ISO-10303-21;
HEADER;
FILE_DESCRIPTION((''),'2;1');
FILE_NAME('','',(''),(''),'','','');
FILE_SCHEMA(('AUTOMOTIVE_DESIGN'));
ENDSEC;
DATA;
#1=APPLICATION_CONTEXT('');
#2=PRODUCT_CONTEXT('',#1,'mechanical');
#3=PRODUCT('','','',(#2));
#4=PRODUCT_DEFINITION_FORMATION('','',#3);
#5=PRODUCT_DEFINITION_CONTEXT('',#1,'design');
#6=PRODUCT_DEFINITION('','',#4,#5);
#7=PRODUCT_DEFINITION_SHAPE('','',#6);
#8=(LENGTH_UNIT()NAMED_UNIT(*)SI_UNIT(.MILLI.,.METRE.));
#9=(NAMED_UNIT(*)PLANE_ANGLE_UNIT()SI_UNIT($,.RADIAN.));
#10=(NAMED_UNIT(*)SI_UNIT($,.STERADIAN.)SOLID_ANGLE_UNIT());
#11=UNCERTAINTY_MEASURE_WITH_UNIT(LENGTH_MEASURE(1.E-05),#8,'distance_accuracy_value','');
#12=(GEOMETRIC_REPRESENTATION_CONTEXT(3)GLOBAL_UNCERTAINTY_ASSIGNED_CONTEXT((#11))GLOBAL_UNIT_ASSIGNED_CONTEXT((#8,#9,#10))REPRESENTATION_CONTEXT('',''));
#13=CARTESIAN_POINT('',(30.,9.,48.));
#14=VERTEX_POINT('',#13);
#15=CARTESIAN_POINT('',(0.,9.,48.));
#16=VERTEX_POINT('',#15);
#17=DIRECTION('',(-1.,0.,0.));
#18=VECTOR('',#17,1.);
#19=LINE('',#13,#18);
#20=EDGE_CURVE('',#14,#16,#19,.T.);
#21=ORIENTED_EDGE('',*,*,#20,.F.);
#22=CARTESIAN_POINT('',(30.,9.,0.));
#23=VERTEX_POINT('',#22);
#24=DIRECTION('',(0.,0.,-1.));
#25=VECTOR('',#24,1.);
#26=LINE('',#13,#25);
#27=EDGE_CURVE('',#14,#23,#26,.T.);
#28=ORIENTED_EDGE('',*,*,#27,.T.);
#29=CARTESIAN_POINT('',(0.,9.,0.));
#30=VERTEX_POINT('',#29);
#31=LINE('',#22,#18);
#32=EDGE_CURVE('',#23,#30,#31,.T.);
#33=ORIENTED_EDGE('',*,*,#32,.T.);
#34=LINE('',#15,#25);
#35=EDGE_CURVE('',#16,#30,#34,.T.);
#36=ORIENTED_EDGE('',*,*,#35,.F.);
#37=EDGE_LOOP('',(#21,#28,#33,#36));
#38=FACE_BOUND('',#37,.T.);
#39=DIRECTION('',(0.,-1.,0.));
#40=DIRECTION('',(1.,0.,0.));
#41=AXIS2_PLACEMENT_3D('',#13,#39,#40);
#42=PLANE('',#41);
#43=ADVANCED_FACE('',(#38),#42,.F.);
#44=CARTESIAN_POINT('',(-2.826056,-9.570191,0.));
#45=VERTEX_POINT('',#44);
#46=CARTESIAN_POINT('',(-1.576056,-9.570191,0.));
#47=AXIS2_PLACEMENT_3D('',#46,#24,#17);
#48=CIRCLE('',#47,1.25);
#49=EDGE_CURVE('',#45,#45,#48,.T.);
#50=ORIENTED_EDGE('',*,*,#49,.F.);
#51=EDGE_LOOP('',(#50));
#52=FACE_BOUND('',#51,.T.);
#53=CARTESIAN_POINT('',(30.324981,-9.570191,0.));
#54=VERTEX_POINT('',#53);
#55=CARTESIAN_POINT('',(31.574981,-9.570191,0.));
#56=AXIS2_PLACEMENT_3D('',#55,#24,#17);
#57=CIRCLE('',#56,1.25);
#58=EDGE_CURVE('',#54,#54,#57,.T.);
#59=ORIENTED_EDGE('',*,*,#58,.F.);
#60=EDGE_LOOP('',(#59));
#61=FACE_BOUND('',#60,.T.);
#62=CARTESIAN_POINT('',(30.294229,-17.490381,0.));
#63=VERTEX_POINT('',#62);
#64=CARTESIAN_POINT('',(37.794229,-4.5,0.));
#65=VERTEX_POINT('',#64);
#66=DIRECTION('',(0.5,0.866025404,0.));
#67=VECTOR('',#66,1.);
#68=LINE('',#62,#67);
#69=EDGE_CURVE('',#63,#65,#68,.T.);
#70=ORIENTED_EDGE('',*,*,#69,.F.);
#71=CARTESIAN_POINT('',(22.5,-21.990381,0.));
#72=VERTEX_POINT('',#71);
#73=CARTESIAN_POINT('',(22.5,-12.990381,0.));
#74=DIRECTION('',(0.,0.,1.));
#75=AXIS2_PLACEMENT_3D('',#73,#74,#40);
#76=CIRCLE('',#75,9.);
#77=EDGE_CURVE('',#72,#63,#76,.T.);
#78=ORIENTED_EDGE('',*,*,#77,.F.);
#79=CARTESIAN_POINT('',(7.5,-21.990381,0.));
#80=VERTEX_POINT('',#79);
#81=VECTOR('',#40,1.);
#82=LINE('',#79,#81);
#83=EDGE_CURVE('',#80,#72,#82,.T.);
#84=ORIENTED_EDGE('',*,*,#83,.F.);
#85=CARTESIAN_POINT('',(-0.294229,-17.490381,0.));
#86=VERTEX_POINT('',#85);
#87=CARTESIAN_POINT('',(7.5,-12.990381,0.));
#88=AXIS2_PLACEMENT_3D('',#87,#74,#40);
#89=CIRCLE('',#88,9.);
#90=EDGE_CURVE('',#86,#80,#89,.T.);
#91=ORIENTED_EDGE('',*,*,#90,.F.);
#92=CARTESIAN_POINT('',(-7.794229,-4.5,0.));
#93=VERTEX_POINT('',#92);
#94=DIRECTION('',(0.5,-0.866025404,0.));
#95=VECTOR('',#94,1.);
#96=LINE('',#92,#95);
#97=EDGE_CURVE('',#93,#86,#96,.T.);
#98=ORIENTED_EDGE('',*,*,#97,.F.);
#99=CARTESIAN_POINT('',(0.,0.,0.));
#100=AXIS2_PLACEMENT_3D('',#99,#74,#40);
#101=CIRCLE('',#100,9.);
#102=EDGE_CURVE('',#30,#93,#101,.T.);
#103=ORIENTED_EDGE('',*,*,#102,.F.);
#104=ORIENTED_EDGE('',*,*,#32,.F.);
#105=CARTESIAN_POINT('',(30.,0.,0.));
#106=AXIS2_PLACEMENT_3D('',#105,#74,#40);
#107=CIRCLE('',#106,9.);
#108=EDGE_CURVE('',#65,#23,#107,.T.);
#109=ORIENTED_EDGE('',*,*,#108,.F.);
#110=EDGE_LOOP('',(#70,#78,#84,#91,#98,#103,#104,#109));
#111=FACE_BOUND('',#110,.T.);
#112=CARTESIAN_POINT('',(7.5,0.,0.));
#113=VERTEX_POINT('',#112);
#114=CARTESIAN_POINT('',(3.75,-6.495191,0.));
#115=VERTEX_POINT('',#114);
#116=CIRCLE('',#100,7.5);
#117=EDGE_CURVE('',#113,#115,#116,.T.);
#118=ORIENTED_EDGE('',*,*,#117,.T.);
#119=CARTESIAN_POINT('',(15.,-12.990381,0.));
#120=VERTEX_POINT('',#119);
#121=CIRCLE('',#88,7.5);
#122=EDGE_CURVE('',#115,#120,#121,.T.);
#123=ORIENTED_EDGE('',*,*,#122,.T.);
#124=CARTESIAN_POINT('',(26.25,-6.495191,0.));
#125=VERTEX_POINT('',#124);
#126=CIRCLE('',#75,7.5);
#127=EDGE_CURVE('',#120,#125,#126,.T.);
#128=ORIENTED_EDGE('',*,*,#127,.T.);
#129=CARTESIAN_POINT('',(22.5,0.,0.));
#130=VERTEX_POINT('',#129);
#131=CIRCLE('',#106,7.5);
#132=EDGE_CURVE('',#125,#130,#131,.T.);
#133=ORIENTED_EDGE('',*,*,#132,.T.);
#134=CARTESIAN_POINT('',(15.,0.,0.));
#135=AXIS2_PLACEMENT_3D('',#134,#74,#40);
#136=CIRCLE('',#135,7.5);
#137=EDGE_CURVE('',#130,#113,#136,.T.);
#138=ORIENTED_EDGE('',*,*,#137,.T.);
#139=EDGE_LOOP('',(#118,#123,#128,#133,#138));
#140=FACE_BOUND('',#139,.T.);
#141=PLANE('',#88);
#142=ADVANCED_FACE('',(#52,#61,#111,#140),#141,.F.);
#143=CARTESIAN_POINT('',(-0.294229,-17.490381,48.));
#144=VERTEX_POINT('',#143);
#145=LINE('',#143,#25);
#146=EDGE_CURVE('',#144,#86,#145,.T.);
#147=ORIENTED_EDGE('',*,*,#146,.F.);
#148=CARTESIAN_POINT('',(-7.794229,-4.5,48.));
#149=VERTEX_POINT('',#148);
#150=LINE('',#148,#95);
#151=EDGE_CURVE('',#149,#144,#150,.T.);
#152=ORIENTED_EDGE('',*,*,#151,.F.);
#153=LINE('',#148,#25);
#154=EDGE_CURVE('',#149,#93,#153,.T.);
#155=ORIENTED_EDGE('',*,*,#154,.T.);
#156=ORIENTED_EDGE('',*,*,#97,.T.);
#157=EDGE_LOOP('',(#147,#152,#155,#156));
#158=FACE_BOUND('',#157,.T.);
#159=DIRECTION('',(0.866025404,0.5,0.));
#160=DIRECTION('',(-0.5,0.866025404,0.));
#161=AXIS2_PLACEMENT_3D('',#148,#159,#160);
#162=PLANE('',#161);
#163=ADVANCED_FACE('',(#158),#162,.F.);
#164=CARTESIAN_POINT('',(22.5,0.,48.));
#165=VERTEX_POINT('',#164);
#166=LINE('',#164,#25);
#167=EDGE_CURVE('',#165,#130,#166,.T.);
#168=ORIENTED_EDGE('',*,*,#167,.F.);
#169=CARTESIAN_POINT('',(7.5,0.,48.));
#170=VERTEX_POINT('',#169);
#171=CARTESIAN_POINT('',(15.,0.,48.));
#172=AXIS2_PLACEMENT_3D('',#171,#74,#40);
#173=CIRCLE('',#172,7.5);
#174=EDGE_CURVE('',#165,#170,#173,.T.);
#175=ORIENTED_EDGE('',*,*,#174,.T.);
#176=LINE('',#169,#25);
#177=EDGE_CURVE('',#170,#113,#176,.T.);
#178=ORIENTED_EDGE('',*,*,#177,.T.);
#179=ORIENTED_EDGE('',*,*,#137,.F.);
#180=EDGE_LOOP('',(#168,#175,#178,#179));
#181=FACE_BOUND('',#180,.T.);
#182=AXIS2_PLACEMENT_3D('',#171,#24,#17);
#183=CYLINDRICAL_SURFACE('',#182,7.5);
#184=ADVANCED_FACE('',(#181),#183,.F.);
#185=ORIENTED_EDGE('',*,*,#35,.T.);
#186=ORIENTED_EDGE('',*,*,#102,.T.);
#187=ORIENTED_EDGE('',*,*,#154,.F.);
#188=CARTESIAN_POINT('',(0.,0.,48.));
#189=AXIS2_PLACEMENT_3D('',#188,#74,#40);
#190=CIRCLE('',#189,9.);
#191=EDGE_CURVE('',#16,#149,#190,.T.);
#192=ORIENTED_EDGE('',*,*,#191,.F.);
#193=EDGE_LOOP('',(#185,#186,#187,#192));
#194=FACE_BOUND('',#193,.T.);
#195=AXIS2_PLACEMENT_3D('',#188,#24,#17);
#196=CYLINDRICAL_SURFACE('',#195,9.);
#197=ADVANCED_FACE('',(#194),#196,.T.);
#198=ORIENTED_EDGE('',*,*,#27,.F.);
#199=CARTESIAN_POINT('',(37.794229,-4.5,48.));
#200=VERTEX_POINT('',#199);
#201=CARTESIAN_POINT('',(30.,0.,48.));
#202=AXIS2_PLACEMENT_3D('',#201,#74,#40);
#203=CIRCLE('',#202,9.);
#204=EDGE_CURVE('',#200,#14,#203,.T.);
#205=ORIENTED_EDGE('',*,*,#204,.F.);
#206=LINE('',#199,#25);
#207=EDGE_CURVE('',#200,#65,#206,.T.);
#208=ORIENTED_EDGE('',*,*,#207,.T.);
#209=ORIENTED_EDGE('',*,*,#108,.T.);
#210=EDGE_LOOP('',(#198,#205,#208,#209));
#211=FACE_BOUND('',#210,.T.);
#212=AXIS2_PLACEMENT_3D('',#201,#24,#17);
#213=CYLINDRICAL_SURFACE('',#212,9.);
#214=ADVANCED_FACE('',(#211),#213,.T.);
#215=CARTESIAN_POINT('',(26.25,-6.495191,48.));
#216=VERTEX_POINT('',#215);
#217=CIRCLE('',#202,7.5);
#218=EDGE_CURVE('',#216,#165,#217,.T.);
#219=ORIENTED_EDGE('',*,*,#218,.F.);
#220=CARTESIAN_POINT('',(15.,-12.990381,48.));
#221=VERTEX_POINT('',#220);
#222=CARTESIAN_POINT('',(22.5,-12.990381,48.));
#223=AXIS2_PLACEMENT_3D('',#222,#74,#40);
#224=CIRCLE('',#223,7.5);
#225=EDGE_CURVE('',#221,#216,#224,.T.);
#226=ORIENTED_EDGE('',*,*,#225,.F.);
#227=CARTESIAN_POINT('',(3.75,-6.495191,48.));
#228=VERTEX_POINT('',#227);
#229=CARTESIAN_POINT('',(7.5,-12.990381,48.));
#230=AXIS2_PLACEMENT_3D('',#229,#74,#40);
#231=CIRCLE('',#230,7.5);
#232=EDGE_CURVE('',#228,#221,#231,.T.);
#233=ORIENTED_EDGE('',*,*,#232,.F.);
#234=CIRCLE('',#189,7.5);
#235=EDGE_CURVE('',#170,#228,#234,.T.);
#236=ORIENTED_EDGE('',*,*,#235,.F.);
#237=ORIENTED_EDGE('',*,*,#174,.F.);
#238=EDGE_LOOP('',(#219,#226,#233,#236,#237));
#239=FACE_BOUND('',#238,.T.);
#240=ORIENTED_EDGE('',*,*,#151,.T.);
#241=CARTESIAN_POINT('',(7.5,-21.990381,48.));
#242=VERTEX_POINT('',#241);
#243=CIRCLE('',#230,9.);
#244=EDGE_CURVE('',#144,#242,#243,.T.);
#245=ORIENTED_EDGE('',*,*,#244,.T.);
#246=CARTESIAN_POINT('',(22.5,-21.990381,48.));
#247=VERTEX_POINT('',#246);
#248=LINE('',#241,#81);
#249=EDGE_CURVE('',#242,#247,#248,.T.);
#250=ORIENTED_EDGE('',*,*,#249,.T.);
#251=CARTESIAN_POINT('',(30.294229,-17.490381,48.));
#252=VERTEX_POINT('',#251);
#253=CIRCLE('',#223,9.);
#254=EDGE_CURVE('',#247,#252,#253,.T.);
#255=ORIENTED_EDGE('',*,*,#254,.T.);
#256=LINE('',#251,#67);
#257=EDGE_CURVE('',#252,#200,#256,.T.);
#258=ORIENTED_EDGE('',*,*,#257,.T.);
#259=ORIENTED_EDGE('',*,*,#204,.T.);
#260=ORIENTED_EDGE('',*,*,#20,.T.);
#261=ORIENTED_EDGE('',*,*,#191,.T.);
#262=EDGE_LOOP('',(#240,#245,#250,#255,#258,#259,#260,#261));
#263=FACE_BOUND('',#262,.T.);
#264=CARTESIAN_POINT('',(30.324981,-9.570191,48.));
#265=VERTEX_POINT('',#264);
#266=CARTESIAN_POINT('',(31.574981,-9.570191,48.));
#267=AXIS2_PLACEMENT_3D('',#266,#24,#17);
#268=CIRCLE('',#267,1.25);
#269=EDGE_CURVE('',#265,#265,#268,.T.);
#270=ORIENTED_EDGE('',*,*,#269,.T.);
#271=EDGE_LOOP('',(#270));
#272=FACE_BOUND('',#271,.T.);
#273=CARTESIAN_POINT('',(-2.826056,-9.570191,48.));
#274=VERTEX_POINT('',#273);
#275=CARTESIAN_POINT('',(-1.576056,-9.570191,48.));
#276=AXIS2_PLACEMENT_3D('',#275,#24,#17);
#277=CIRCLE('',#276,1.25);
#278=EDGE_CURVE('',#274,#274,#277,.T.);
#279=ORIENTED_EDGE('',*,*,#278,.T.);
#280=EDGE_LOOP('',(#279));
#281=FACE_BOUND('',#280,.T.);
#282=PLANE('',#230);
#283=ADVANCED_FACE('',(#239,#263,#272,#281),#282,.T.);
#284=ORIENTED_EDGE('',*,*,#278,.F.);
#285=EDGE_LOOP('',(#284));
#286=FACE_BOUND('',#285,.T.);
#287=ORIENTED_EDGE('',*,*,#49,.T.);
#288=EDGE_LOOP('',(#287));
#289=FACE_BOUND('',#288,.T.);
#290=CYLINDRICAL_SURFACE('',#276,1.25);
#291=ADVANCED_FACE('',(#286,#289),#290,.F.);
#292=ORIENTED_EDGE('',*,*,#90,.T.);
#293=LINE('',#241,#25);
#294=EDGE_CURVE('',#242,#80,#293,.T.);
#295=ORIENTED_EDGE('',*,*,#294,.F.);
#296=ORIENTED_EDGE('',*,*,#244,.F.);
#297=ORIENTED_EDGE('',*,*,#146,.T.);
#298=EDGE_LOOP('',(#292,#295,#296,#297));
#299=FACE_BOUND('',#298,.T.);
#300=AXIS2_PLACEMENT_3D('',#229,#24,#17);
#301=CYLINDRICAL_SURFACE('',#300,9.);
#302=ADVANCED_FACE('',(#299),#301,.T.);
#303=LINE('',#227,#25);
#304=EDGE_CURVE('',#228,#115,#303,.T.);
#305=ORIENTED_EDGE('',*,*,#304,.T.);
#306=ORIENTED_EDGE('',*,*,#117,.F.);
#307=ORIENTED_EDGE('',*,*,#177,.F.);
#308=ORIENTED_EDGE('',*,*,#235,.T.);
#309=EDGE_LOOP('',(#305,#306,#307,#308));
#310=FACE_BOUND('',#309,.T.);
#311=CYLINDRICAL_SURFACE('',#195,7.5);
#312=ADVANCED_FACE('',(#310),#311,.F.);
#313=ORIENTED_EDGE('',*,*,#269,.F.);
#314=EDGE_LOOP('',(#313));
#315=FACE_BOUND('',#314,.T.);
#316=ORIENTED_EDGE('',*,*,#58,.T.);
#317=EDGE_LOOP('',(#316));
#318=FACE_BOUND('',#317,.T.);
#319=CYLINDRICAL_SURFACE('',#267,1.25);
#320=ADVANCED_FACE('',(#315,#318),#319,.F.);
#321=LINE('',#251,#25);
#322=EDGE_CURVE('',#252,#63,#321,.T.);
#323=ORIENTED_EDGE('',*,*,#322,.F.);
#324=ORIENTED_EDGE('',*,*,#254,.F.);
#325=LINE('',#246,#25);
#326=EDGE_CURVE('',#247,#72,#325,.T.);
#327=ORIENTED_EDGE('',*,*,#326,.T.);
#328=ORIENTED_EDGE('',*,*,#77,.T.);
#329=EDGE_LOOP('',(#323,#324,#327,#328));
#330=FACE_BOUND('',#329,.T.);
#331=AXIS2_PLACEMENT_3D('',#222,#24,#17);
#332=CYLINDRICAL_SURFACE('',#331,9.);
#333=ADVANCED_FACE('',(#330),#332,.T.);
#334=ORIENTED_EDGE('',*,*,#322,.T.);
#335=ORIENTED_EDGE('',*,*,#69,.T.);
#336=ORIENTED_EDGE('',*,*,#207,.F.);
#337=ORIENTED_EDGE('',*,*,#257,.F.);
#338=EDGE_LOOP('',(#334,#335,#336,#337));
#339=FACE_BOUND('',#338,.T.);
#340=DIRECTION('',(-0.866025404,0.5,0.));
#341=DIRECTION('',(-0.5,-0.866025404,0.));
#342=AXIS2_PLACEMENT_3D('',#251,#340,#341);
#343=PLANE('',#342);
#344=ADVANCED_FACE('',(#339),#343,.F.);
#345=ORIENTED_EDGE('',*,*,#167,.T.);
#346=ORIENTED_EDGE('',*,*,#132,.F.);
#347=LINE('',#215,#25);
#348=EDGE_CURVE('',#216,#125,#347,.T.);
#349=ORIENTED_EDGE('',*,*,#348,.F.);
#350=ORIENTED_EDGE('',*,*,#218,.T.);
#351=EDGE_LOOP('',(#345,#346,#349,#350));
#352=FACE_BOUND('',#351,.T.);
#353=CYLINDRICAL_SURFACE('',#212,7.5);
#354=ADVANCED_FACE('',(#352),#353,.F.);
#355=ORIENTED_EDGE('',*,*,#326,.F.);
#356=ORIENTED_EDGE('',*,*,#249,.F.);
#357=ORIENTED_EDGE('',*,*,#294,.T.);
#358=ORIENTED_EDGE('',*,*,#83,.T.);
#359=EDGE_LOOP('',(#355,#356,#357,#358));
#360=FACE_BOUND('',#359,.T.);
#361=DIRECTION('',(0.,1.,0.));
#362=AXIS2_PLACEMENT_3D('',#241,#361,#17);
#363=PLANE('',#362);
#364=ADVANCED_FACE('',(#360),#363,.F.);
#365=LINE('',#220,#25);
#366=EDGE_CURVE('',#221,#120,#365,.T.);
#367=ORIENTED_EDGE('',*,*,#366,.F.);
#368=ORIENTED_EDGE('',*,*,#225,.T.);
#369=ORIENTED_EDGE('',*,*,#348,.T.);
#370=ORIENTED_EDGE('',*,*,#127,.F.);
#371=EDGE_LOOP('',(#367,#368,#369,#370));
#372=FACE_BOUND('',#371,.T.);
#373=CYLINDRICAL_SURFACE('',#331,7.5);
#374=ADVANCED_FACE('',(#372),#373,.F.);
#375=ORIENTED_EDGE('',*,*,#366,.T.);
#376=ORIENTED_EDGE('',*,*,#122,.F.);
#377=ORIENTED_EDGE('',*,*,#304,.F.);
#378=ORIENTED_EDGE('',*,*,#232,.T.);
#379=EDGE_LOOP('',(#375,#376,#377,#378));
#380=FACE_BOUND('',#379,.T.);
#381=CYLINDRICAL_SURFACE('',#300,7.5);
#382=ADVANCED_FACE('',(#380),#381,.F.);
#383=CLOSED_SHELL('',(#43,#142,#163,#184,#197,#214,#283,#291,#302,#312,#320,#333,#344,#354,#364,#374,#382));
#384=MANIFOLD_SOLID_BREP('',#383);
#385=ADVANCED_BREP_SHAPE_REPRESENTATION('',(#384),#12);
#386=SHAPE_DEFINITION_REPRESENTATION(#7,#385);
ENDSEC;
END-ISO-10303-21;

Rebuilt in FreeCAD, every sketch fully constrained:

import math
import FreeCAD as App
import Part
import Sketcher

doc = App.newDocument("Part")
body = doc.addObject("PartDesign::Body", "Body")

# Sketch on XY plane
sketch1 = body.newObject("Sketcher::SketchObject", "Sketch")
sketch1.AttachmentSupport = (doc.getObject("XY_Plane"), [""])
sketch1.MapMode = "FlatFace"
sketch1.addGeometry([
    Part.LineSegment(App.Vector(8, -22, 0), App.Vector(22, -22, 0)),  # 0
    Part.ArcOfCircle(Part.Circle(App.Vector(22, -13, 0), App.Vector(0, 0, 1), 9), math.radians(-90), math.radians(-30)),  # 1
    Part.LineSegment(App.Vector(30, -17, 0), App.Vector(38, -4, 0)),  # 2
    Part.ArcOfCircle(Part.Circle(App.Vector(30, 0, 0), App.Vector(0, 0, 1), 9), math.radians(-30), math.radians(90)),  # 3
    Part.LineSegment(App.Vector(30, 9, 0), App.Vector(0, 9, 0)),  # 4
    Part.ArcOfCircle(Part.Circle(App.Vector(0, 0, 0), App.Vector(0, 0, 1), 9), math.radians(90), math.radians(210)),  # 5
    Part.LineSegment(App.Vector(-8, -4, 0), App.Vector(0, -17, 0)),  # 6
    Part.ArcOfCircle(Part.Circle(App.Vector(8, -13, 0), App.Vector(0, 0, 1), 9), math.radians(-150), math.radians(-90)),  # 7
    Part.ArcOfCircle(Part.Circle(App.Vector(8, -13, 0), App.Vector(0, 0, 1), 8), math.radians(120), math.radians(360)),  # 8
    Part.ArcOfCircle(Part.Circle(App.Vector(0, 0, 0), App.Vector(0, 0, 1), 8), math.radians(0), math.radians(300)),  # 9
    Part.ArcOfCircle(Part.Circle(App.Vector(15, 0, 0), App.Vector(0, 0, 1), 8), math.radians(0), math.radians(180)),  # 10
    Part.ArcOfCircle(Part.Circle(App.Vector(30, 0, 0), App.Vector(0, 0, 1), 8), math.radians(-120), math.radians(180)),  # 11
    Part.ArcOfCircle(Part.Circle(App.Vector(22, -13, 0), App.Vector(0, 0, 1), 8), math.radians(-180), math.radians(60)),  # 12
], False)
sketch1.addConstraint([
    Sketcher.Constraint("Tangent", 0, 2, 1, 1),
    Sketcher.Constraint("Tangent", 1, 2, 2, 1),
    Sketcher.Constraint("Tangent", 2, 2, 3, 1),
    Sketcher.Constraint("Tangent", 3, 2, 4, 1),
    Sketcher.Constraint("Tangent", 4, 2, 5, 1),
    Sketcher.Constraint("Tangent", 5, 2, 6, 1),
    Sketcher.Constraint("Tangent", 6, 2, 7, 1),
    Sketcher.Constraint("Tangent", 7, 2, 0, 1),
    Sketcher.Constraint("Tangent", 8, 1, 9, 2),
    Sketcher.Constraint("Tangent", 9, 1, 10, 2),
    Sketcher.Constraint("Tangent", 10, 1, 11, 2),
    Sketcher.Constraint("Tangent", 11, 1, 12, 2),
    Sketcher.Constraint("Tangent", 12, 1, 8, 2),
    Sketcher.Constraint("Horizontal", 0),
    Sketcher.Constraint("Horizontal", 4),
    Sketcher.Constraint("Coincident", 5, 3, -1, 1),
    Sketcher.Constraint("Coincident", 9, 3, -1, 1),
    Sketcher.Constraint("Coincident", 8, 3, 7, 3),
    Sketcher.Constraint("Coincident", 11, 3, 3, 3),
    Sketcher.Constraint("Coincident", 12, 3, 1, 3),
    Sketcher.Constraint("Equal", 1, 3),
    Sketcher.Constraint("Equal", 3, 5),
    Sketcher.Constraint("Equal", 5, 7),
    Sketcher.Constraint("Equal", 8, 9),
    Sketcher.Constraint("Equal", 9, 10),
    Sketcher.Constraint("Equal", 10, 11),
    Sketcher.Constraint("Equal", 11, 12),
    Sketcher.Constraint("PointOnObject", 10, 3, -1),
    Sketcher.Constraint("Radius", 1, 9.0),
    Sketcher.Constraint("Radius", 8, 7.5),
])
pad1 = body.newObject("PartDesign::Pad", "Pad")
pad1.Profile = sketch1
pad1.Length = 48

# Sketch on XY plane
sketch2 = body.newObject("Sketcher::SketchObject", "Sketch001")
sketch2.AttachmentSupport = (doc.getObject("XY_Plane"), [""])
sketch2.MapMode = "FlatFace"
sketch2.addGeometry([
    Part.Circle(App.Vector(-1.6, -9.6, 0), App.Vector(0, 0, 1), 1.2),
    Part.Circle(App.Vector(31.6, -9.6, 0), App.Vector(0, 0, 1), 1.2),
], False)
sketch2.addConstraint([
    Sketcher.Constraint("Equal", 0, 1),
    Sketcher.Constraint("Horizontal", 0, 3, 1, 3),
    Sketcher.Constraint("Diameter", 0, 2.5),
    Sketcher.Constraint("DistanceY", 0, 3, -1, 1, 9.570191),
    Sketcher.Constraint("DistanceX", -1, 1, 1, 3, 31.574981),
    Sketcher.Constraint("DistanceX", 0, 3, -1, 1, 1.576056),
])
pocket1 = body.newObject("PartDesign::Pocket", "Pocket")
pocket1.Profile = sketch2
pocket1.Type = "ThroughAll"
pocket1.Reversed = True

doc.recompute()
